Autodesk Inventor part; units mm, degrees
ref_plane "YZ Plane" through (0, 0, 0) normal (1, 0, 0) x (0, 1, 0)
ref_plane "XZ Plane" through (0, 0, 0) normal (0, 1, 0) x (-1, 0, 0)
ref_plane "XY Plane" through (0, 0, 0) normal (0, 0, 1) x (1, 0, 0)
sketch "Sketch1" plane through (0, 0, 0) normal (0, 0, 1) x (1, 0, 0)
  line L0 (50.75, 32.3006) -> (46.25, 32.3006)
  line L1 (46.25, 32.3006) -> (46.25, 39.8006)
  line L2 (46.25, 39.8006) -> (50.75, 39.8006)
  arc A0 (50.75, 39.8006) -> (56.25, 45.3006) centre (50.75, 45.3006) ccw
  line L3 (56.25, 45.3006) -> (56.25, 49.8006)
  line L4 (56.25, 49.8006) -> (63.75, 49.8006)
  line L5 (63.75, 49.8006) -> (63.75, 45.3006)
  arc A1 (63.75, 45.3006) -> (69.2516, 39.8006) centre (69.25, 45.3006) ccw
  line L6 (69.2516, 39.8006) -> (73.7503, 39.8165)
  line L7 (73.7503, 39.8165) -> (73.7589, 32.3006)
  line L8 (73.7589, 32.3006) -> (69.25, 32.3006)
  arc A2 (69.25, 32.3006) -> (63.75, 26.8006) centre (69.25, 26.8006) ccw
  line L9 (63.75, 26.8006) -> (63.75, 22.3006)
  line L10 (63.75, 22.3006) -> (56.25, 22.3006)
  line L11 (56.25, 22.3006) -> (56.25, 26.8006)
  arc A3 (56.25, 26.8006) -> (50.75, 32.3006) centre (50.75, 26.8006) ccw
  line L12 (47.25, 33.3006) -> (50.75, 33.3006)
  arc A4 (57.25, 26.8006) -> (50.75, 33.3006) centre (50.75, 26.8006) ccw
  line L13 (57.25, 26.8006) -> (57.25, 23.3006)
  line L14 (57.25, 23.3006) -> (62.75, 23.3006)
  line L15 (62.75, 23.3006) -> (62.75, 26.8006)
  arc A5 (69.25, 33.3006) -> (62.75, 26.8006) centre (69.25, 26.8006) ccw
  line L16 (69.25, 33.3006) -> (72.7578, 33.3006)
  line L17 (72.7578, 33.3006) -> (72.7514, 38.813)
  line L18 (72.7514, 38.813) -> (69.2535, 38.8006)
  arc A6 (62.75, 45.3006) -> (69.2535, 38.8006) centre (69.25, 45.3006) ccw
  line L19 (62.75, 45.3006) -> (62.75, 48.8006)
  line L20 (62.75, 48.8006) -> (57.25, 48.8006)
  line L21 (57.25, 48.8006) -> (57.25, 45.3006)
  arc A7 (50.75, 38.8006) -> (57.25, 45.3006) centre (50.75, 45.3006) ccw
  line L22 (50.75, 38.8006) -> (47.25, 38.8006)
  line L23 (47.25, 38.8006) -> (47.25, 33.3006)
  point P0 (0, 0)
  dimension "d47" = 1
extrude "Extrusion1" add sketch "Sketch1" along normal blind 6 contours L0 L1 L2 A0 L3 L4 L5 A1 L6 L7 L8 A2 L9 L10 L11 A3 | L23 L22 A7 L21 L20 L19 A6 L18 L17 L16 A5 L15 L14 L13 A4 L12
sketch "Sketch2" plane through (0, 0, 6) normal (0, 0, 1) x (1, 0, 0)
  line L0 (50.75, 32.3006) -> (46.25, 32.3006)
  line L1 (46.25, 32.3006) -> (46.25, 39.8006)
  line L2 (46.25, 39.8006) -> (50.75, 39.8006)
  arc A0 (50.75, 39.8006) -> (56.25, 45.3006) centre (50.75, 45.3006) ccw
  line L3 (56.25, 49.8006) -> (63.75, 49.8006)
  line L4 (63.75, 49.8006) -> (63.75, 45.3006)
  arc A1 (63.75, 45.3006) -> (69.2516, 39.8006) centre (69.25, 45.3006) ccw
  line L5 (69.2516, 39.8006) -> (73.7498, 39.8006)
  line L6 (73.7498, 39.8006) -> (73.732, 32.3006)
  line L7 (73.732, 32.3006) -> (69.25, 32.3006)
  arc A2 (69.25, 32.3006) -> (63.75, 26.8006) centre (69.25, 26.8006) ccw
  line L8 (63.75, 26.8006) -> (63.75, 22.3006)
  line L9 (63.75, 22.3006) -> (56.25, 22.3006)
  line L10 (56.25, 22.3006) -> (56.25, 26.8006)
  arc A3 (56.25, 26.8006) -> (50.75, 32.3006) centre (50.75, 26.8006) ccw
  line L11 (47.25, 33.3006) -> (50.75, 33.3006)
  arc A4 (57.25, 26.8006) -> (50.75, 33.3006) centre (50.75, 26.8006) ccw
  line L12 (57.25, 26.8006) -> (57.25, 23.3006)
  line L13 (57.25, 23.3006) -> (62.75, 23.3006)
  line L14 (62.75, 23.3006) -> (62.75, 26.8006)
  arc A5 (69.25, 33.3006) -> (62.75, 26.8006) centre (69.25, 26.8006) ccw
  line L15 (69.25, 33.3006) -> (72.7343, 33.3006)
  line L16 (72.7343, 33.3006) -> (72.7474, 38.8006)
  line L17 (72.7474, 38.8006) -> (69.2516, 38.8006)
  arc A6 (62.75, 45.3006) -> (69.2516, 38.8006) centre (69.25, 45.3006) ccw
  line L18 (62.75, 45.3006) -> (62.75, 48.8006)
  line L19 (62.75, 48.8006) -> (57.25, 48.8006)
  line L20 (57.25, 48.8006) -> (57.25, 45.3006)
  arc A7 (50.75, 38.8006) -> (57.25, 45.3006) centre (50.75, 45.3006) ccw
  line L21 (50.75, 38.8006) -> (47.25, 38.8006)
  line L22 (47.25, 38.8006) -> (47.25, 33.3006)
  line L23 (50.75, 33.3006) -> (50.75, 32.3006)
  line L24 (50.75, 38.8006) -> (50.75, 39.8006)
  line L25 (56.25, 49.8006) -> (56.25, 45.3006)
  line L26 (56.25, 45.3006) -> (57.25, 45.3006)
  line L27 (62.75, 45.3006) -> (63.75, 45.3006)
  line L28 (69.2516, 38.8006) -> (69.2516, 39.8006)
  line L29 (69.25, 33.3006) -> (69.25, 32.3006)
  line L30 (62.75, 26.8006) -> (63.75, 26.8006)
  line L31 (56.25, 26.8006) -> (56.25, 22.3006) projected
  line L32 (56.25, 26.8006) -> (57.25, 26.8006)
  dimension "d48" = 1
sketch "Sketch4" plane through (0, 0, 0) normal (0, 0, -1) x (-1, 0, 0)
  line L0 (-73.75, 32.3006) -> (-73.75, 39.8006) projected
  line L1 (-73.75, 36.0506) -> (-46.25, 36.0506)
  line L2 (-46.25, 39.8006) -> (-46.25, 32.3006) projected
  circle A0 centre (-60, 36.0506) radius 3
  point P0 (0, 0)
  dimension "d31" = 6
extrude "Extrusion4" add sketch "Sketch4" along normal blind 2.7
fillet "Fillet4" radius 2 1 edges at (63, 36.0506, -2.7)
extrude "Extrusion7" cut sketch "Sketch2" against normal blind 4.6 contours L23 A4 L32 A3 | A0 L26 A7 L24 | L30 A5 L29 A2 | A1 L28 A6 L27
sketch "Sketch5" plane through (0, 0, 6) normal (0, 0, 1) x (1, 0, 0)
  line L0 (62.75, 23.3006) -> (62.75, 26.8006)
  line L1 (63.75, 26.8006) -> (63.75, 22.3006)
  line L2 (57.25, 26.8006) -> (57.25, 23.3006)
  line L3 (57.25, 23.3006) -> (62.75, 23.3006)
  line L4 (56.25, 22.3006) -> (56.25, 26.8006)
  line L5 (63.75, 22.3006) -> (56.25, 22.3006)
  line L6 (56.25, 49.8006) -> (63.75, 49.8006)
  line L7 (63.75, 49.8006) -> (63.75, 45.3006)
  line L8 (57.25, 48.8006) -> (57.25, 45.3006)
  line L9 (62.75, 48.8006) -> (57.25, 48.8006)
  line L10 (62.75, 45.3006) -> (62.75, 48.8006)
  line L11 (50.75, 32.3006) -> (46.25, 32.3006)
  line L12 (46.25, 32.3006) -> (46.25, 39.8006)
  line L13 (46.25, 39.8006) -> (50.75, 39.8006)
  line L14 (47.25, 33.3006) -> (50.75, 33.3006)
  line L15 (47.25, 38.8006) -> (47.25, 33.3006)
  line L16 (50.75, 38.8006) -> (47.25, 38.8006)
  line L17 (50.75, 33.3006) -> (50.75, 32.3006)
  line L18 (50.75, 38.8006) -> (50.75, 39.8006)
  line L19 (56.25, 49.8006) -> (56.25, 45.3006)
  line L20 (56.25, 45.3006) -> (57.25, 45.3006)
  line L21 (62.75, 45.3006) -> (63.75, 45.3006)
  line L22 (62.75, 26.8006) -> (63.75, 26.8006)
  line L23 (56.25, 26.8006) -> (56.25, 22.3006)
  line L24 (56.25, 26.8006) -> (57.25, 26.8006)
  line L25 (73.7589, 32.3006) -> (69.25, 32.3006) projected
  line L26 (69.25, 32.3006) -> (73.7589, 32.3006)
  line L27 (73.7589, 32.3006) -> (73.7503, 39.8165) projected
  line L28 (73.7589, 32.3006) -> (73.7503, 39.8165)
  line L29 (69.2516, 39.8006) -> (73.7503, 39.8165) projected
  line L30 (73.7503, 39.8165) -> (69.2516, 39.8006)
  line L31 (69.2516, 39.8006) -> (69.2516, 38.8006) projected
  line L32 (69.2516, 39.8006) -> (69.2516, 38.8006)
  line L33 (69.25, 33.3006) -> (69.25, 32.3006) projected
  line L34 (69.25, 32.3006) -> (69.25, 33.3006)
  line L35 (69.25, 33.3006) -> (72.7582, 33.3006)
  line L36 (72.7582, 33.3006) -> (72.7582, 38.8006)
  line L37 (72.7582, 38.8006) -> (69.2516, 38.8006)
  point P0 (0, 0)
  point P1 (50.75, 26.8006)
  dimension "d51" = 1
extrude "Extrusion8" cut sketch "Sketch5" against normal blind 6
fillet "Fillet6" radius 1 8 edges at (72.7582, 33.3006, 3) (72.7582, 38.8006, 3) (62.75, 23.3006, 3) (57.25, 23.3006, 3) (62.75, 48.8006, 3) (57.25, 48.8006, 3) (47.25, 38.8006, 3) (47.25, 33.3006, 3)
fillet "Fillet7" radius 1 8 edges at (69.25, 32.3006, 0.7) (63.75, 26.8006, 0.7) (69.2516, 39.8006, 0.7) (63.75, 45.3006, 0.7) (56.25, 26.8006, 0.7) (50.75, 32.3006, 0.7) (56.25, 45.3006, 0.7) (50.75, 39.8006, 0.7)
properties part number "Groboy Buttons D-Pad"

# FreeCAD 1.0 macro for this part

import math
import FreeCAD as App
import Part
import Sketcher

V = App.Vector


def edges_at(feature, points):
    """Names of the edges that pass closest to the given points."""
    edges = feature.Shape.Edges
    near = lambda p: min(range(len(edges)), key=lambda i: edges[i].distToShape(Part.Vertex(*p))[0])
    return sorted({f"Edge{near(p) + 1}" for p in points})

doc = App.newDocument("Part")
body = doc.addObject("PartDesign::Body", "Body")

# Sketch on XY plane
sketch1 = doc.addObject("Sketcher::SketchObject", "Sketch")
body.addObject(sketch1)
sketch1.AttachmentSupport = (doc.XY_Plane, [""])
sketch1.MapMode = "FlatFace"
sketch1.addGeometry([
    Part.LineSegment(V(46.2, 32.3, 0), V(50.8, 32.3, 0)),  # 0
    Part.ArcOfCircle(Part.Circle(V(50.8, 26.8, 0), V(0, 0, 1), 5.5), math.radians(0), math.radians(90)),  # 1
    Part.LineSegment(V(56.2, 26.8, 0), V(56.2, 22.3, 0)),  # 2
    Part.LineSegment(V(56.2, 22.3, 0), V(63.8, 22.3, 0)),  # 3
    Part.LineSegment(V(63.8, 22.3, 0), V(63.8, 26.8, 0)),  # 4
    Part.ArcOfCircle(Part.Circle(V(69.2, 26.8, 0), V(0, 0, 1), 5.5), math.radians(90), math.radians(180)),  # 5
    Part.LineSegment(V(69.2, 32.3, 0), V(73.8, 32.3, 0)),  # 6
    Part.LineSegment(V(73.8, 32.3, 0), V(73.8, 39.8, 0)),  # 7
    Part.LineSegment(V(73.8, 39.8, 0), V(69.3, 39.8, 0)),  # 8
    Part.ArcOfCircle(Part.Circle(V(69.2, 45.3, 0), V(0, 0, 1), 5.5), math.radians(180), math.radians(270)),  # 9
    Part.LineSegment(V(63.8, 45.3, 0), V(63.8, 49.8, 0)),  # 10
    Part.LineSegment(V(63.8, 49.8, 0), V(56.2, 49.8, 0)),  # 11
    Part.LineSegment(V(56.2, 49.8, 0), V(56.2, 45.3, 0)),  # 12
    Part.ArcOfCircle(Part.Circle(V(50.8, 45.3, 0), V(0, 0, 1), 5.5), math.radians(-90), math.radians(0)),  # 13
    Part.LineSegment(V(50.8, 39.8, 0), V(46.2, 39.8, 0)),  # 14
    Part.LineSegment(V(46.2, 39.8, 0), V(46.2, 32.3, 0)),  # 15
], False)
sketch1.addConstraint([
    Sketcher.Constraint("Tangent", 0, 2, 1, 2),
    Sketcher.Constraint("Tangent", 1, 1, 2, 1),
    Sketcher.Constraint("Coincident", 2, 2, 3, 1),
    Sketcher.Constraint("Coincident", 3, 2, 4, 1),
    Sketcher.Constraint("Tangent", 4, 2, 5, 2),
    Sketcher.Constraint("Tangent", 5, 1, 6, 1),
    Sketcher.Constraint("Coincident", 6, 2, 7, 1),
    Sketcher.Constraint("Coincident", 7, 2, 8, 1),
    Sketcher.Constraint("Coincident", 8, 2, 9, 2),
    Sketcher.Constraint("Tangent", 9, 1, 10, 1),
    Sketcher.Constraint("Coincident", 10, 2, 11, 1),
    Sketcher.Constraint("Coincident", 11, 2, 12, 1),
    Sketcher.Constraint("Tangent", 12, 2, 13, 2),
    Sketcher.Constraint("Tangent", 13, 1, 14, 1),
    Sketcher.Constraint("Coincident", 14, 2, 15, 1),
    Sketcher.Constraint("Coincident", 15, 2, 0, 1),
    Sketcher.Constraint("Horizontal", 0),
    Sketcher.Constraint("Vertical", 2),
    Sketcher.Constraint("Horizontal", 3),
    Sketcher.Constraint("Vertical", 4),
    Sketcher.Constraint("Horizontal", 6),
    Sketcher.Constraint("Vertical", 10),
    Sketcher.Constraint("Horizontal", 11),
    Sketcher.Constraint("Vertical", 12),
    Sketcher.Constraint("Horizontal", 14),
    Sketcher.Constraint("Vertical", 15),
    Sketcher.Constraint("Equal", 1, 5),
    Sketcher.Constraint("Equal", 5, 9),
    Sketcher.Constraint("Equal", 9, 13),
    Sketcher.Constraint("Horizontal", 1, 3, 5, 3),
    Sketcher.Constraint("Horizontal", 9, 3, 13, 3),
    Sketcher.Constraint("Vertical", 5, 3, 9, 3),
    Sketcher.Constraint("Vertical", 1, 3, 13, 3),
    Sketcher.Constraint("Equal", 14, 2),
    Sketcher.Constraint("Equal", 4, 10),
    Sketcher.Constraint("Equal", 11, 15),
    Sketcher.Constraint("Radius", 1, 5.5),
    Sketcher.Constraint("DistanceX", 0, 1, 0, 2, 4.5),
    Sketcher.Constraint("DistanceX", 3, 1, 3, 2, 7.5),
    Sketcher.Constraint("DistanceX", 6, 1, 6, 2, 4.509),
    Sketcher.Constraint("DistanceX", -1, 1, 1, 3, 50.75),
    Sketcher.Constraint("Distance", 7, 7.516),
    Sketcher.Constraint("Distance", 8, 4.4987),
    Sketcher.Constraint("DistanceY", -1, 1, 1, 3, 26.8006),
    Sketcher.Constraint("DistanceX", -1, 1, 7, 2, 73.7503),
])
pad1 = doc.addObject("PartDesign::Pad", "Pad")
body.addObject(pad1)
pad1.Profile = sketch1
pad1.Length = 6

# Sketch on XY plane
sketch2 = doc.addObject("Sketcher::SketchObject", "Sketch001")
body.addObject(sketch2)
sketch2.AttachmentSupport = (doc.XY_Plane, [""])
sketch2.MapMode = "FlatFace"
sketch2.addGeometry(Part.Circle(V(60, 36.1, 0), V(0, 0, 1), 3), False)
sketch2.addConstraint([
    Sketcher.Constraint("Diameter", 0, 6.0),
    Sketcher.Constraint("DistanceX", -1, 1, 0, 3, 60.0),
    Sketcher.Constraint("DistanceY", -1, 1, 0, 3, 36.0506),
])
pad2 = doc.addObject("PartDesign::Pad", "Pad001")
body.addObject(pad2)
pad2.Profile = sketch2
pad2.Length = 2.7
pad2.Reversed = True
doc.recompute()

fillet = doc.addObject("PartDesign::Fillet", "Fillet")
body.addObject(fillet)
fillet.Base = (pad2, edges_at(pad2, [(63, 36.051, -2.7)]))
fillet.Radius = 2

# Sketch on XY plane
sketch3 = doc.addObject("Sketcher::SketchObject", "Sketch002")
body.addObject(sketch3)
sketch3.AttachmentSupport = (doc.XY_Plane, [""])
sketch3.MapMode = "FlatFace"
sketch3.AttachmentOffset = App.Placement(V(0, 0, 6), App.Rotation())
sketch3.addGeometry([
    Part.LineSegment(V(50.8, 33.3, 0), V(50.8, 32.3, 0)),  # 0
    Part.ArcOfCircle(Part.Circle(V(50.8, 26.8, 0), V(0, 0, 1), 5.5), math.radians(0), math.radians(90)),  # 1
    Part.LineSegment(V(56.2, 26.8, 0), V(57.2, 26.8, 0)),  # 2
    Part.ArcOfCircle(Part.Circle(V(50.8, 26.8, 0), V(0, 0, 1), 6.5), math.radians(0), math.radians(90)),  # 3
    Part.ArcOfCircle(Part.Circle(V(50.8, 45.3, 0), V(0, 0, 1), 5.5), math.radians(-90), math.radians(0)),  # 4
    Part.LineSegment(V(50.8, 39.8, 0), V(50.8, 38.8, 0)),  # 5
    Part.ArcOfCircle(Part.Circle(V(50.8, 45.3, 0), V(0, 0, 1), 6.5), math.radians(-90), math.radians(0)),  # 6
    Part.LineSegment(V(57.2, 45.3, 0), V(56.2, 45.3, 0)),  # 7
    Part.LineSegment(V(62.8, 26.8, 0), V(63.8, 26.8, 0)),  # 8
    Part.ArcOfCircle(Part.Circle(V(69.2, 26.8, 0), V(0, 0, 1), 5.5), math.radians(90), math.radians(180)),  # 9
    Part.LineSegment(V(69.2, 32.3, 0), V(69.2, 33.3, 0)),  # 10
    Part.ArcOfCircle(Part.Circle(V(69.2, 26.8, 0), V(0, 0, 1), 6.5), math.radians(90), math.radians(180)),  # 11
    Part.ArcOfCircle(Part.Circle(V(69.2, 45.3, 0), V(0, 0, 1), 5.5), math.radians(180), math.radians(270)),  # 12
    Part.LineSegment(V(63.8, 45.3, 0), V(62.8, 45.3, 0)),  # 13
    Part.ArcOfCircle(Part.Circle(V(69.2, 45.3, 0), V(0, 0, 1), 6.5), math.radians(180), math.radians(270)),  # 14
    Part.LineSegment(V(69.3, 38.8, 0), V(69.3, 39.8, 0)),  # 15
], False)
sketch3.addConstraint([
    Sketcher.Constraint("Coincident", 0, 2, 1, 2),
    Sketcher.Constraint("Coincident", 1, 1, 2, 1),
    Sketcher.Constraint("Coincident", 2, 2, 3, 1),
    Sketcher.Constraint("Coincident", 3, 2, 0, 1),
    Sketcher.Constraint("Coincident", 4, 1, 5, 1),
    Sketcher.Constraint("Coincident", 5, 2, 6, 1),
    Sketcher.Constraint("Coincident", 6, 2, 7, 1),
    Sketcher.Constraint("Coincident", 7, 2, 4, 2),
    Sketcher.Constraint("Coincident", 8, 2, 9, 2),
    Sketcher.Constraint("Coincident", 9, 1, 10, 1),
    Sketcher.Constraint("Coincident", 10, 2, 11, 1),
    Sketcher.Constraint("Coincident", 11, 2, 8, 1),
    Sketcher.Constraint("Coincident", 12, 1, 13, 1),
    Sketcher.Constraint("Coincident", 13, 2, 14, 1),
    Sketcher.Constraint("Coincident", 14, 2, 15, 1),
    Sketcher.Constraint("Coincident", 15, 2, 12, 2),
    Sketcher.Constraint("Vertical", 0),
    Sketcher.Constraint("Horizontal", 2),
    Sketcher.Constraint("Vertical", 5),
    Sketcher.Constraint("Horizontal", 7),
    Sketcher.Constraint("Horizontal", 8),
    Sketcher.Constraint("Vertical", 10),
    Sketcher.Constraint("Horizontal", 13),
    Sketcher.Constraint("Vertical", 15),
    Sketcher.Constraint("Coincident", 3, 3, 1, 3),
    Sketcher.Constraint("Coincident", 6, 3, 4, 3),
    Sketcher.Constraint("Coincident", 11, 3, 9, 3),
    Sketcher.Constraint("Coincident", 14, 3, 12, 3),
    Sketcher.Constraint("Equal", 1, 4),
    Sketcher.Constraint("Equal", 3, 6),
    Sketcher.Constraint("Equal", 4, 9),
    Sketcher.Constraint("Equal", 6, 11),
    Sketcher.Constraint("Equal", 9, 12),
    Sketcher.Constraint("Equal", 11, 14),
    Sketcher.Constraint("Horizontal", 3, 3, 9, 3),
    Sketcher.Constraint("Horizontal", 6, 3, 12, 3),
    Sketcher.Constraint("Horizontal", 11, 3, 1, 1),
    Sketcher.Constraint("Horizontal", 14, 3, 6, 2),
    Sketcher.Constraint("Horizontal", 2, 2, 8, 2),
    Sketcher.Constraint("Horizontal", 7, 2, 12, 1),
    Sketcher.Constraint("Vertical", 3, 3, 4, 3),
    Sketcher.Constraint("Vertical", 11, 3, 12, 3),
    Sketcher.Constraint("Vertical", 6, 3, 0, 2),
    Sketcher.Constraint("Vertical", 3, 2, 4, 1),
    Sketcher.Constraint("Vertical", 14, 3, 9, 1),
    Sketcher.Constraint("DistanceX", 2, 1, 2, 2, 1.0),
    Sketcher.Constraint("Radius", 1, 5.5),
    Sketcher.Constraint("DistanceY", 0, 2, 4, 3, 13.0),
    Sketcher.Constraint("DistanceX", 1, 1, 9, 3, 13.0),
    Sketcher.Constraint("DistanceX", -1, 1, 1, 3, 50.75),
    Sketcher.Constraint("DistanceY", -1, 1, 1, 3, 26.8006),
    Sketcher.Constraint("DistanceX", -1, 1, 14, 2, 69.2516),
])
pocket1 = doc.addObject("PartDesign::Pocket", "Pocket")
body.addObject(pocket1)
pocket1.Profile = sketch3
pocket1.Length = 4.6

# Sketch on XY plane
sketch4 = doc.addObject("Sketcher::SketchObject", "Sketch003")
body.addObject(sketch4)
sketch4.AttachmentSupport = (doc.XY_Plane, [""])
sketch4.MapMode = "FlatFace"
sketch4.AttachmentOffset = App.Placement(V(0, 0, 6), App.Rotation())
sketch4.addGeometry([
    Part.LineSegment(V(62.8, 26.8, 0), V(62.8, 23.3, 0)),  # 0
    Part.LineSegment(V(62.8, 23.3, 0), V(57.2, 23.3, 0)),  # 1
    Part.LineSegment(V(57.2, 23.3, 0), V(57.2, 26.8, 0)),  # 2
    Part.LineSegment(V(57.2, 26.8, 0), V(56.2, 26.8, 0)),  # 3
    Part.LineSegment(V(56.2, 26.8, 0), V(56.2, 22.3, 0)),  # 4
    Part.LineSegment(V(56.2, 22.3, 0), V(63.8, 22.3, 0)),  # 5
    Part.LineSegment(V(63.8, 22.3, 0), V(63.8, 26.8, 0)),  # 6
    Part.LineSegment(V(63.8, 26.8, 0), V(62.8, 26.8, 0)),  # 7
    Part.LineSegment(V(63.8, 49.8, 0), V(56.2, 49.8, 0)),  # 8
    Part.LineSegment(V(56.2, 49.8, 0), V(56.2, 45.3, 0)),  # 9
    Part.LineSegment(V(56.2, 45.3, 0), V(57.2, 45.3, 0)),  # 10
    Part.LineSegment(V(57.2, 45.3, 0), V(57.2, 48.8, 0)),  # 11
    Part.LineSegment(V(57.2, 48.8, 0), V(62.8, 48.8, 0)),  # 12
    Part.LineSegment(V(62.8, 48.8, 0), V(62.8, 45.3, 0)),  # 13
    Part.LineSegment(V(62.8, 45.3, 0), V(63.8, 45.3, 0)),  # 14
    Part.LineSegment(V(63.8, 45.3, 0), V(63.8, 49.8, 0)),  # 15
    Part.LineSegment(V(46.2, 32.3, 0), V(50.8, 32.3, 0)),  # 16
    Part.LineSegment(V(50.8, 32.3, 0), V(50.8, 33.3, 0)),  # 17
    Part.LineSegment(V(50.8, 33.3, 0), V(47.2, 33.3, 0)),  # 18
    Part.LineSegment(V(47.2, 33.3, 0), V(47.2, 38.8, 0)),  # 19
    Part.LineSegment(V(47.2, 38.8, 0), V(50.8, 38.8, 0)),  # 20
    Part.LineSegment(V(50.8, 38.8, 0), V(50.8, 39.8, 0)),  # 21
    Part.LineSegment(V(50.8, 39.8, 0), V(46.2, 39.8, 0)),  # 22
    Part.LineSegment(V(46.2, 39.8, 0), V(46.2, 32.3, 0)),  # 23
    Part.LineSegment(V(69.2, 32.3, 0), V(73.8, 32.3, 0)),  # 24
    Part.LineSegment(V(73.8, 32.3, 0), V(73.8, 39.8, 0)),  # 25
    Part.LineSegment(V(73.8, 39.8, 0), V(69.3, 39.8, 0)),  # 26
    Part.LineSegment(V(69.3, 39.8, 0), V(69.3, 38.8, 0)),  # 27
    Part.LineSegment(V(69.3, 38.8, 0), V(72.8, 38.8, 0)),  # 28
    Part.LineSegment(V(72.8, 38.8, 0), V(72.8, 33.3, 0)),  # 29
    Part.LineSegment(V(72.8, 33.3, 0), V(69.2, 33.3, 0)),  # 30
    Part.LineSegment(V(69.2, 33.3, 0), V(69.2, 32.3, 0)),  # 31
], False)
sketch4.addConstraint([
    Sketcher.Constraint("Coincident", 0, 2, 1, 1),
    Sketcher.Constraint("Coincident", 1, 2, 2, 1),
    Sketcher.Constraint("Coincident", 2, 2, 3, 1),
    Sketcher.Constraint("Coincident", 3, 2, 4, 1),
    Sketcher.Constraint("Coincident", 4, 2, 5, 1),
    Sketcher.Constraint("Coincident", 5, 2, 6, 1),
    Sketcher.Constraint("Coincident", 6, 2, 7, 1),
    Sketcher.Constraint("Coincident", 7, 2, 0, 1),
    Sketcher.Constraint("Coincident", 8, 2, 9, 1),
    Sketcher.Constraint("Coincident", 9, 2, 10, 1),
    Sketcher.Constraint("Coincident", 10, 2, 11, 1),
    Sketcher.Constraint("Coincident", 11, 2, 12, 1),
    Sketcher.Constraint("Coincident", 12, 2, 13, 1),
    Sketcher.Constraint("Coincident", 13, 2, 14, 1),
    Sketcher.Constraint("Coincident", 14, 2, 15, 1),
    Sketcher.Constraint("Coincident", 15, 2, 8, 1),
    Sketcher.Constraint("Coincident", 16, 2, 17, 1),
    Sketcher.Constraint("Coincident", 17, 2, 18, 1),
    Sketcher.Constraint("Coincident", 18, 2, 19, 1),
    Sketcher.Constraint("Coincident", 19, 2, 20, 1),
    Sketcher.Constraint("Coincident", 20, 2, 21, 1),
    Sketcher.Constraint("Coincident", 21, 2, 22, 1),
    Sketcher.Constraint("Coincident", 22, 2, 23, 1),
    Sketcher.Constraint("Coincident", 23, 2, 16, 1),
    Sketcher.Constraint("Coincident", 24, 2, 25, 1),
    Sketcher.Constraint("Coincident", 25, 2, 26, 1),
    Sketcher.Constraint("Coincident", 26, 2, 27, 1),
    Sketcher.Constraint("Coincident", 27, 2, 28, 1),
    Sketcher.Constraint("Coincident", 28, 2, 29, 1),
    Sketcher.Constraint("Coincident", 29, 2, 30, 1),
    Sketcher.Constraint("Coincident", 30, 2, 31, 1),
    Sketcher.Constraint("Coincident", 31, 2, 24, 1),
    Sketcher.Constraint("Vertical", 0),
    Sketcher.Constraint("Horizontal", 1),
    Sketcher.Constraint("Vertical", 2),
    Sketcher.Constraint("Horizontal", 3),
    Sketcher.Constraint("Vertical", 4),
    Sketcher.Constraint("Horizontal", 5),
    Sketcher.Constraint("Vertical", 6),
    Sketcher.Constraint("Horizontal", 7),
    Sketcher.Constraint("Horizontal", 8),
    Sketcher.Constraint("Vertical", 9),
    Sketcher.Constraint("Horizontal", 10),
    Sketcher.Constraint("Vertical", 11),
    Sketcher.Constraint("Horizontal", 12),
    Sketcher.Constraint("Vertical", 13),
    Sketcher.Constraint("Horizontal", 14),
    Sketcher.Constraint("Vertical", 15),
    Sketcher.Constraint("Horizontal", 16),
    Sketcher.Constraint("Vertical", 17),
    Sketcher.Constraint("Horizontal", 18),
    Sketcher.Constraint("Vertical", 19),
    Sketcher.Constraint("Horizontal", 20),
    Sketcher.Constraint("Vertical", 21),
    Sketcher.Constraint("Horizontal", 22),
    Sketcher.Constraint("Vertical", 23),
    Sketcher.Constraint("Horizontal", 24),
    Sketcher.Constraint("Vertical", 27),
    Sketcher.Constraint("Horizontal", 28),
    Sketcher.Constraint("Vertical", 29),
    Sketcher.Constraint("Horizontal", 30),
    Sketcher.Constraint("Vertical", 31),
    Sketcher.Constraint("Horizontal", 3, 2, 6, 2),
    Sketcher.Constraint("Horizontal", 10, 2, 13, 2),
    Sketcher.Constraint("Horizontal", 23, 2, 24, 2),
    Sketcher.Constraint("Horizontal", 22, 2, 26, 2),
    Sketcher.Constraint("Horizontal", 20, 2, 27, 2),
    Sketcher.Constraint("Horizontal", 18, 2, 29, 2),
    Sketcher.Constraint("Vertical", 4, 2, 8, 2),
    Sketcher.Constraint("Vertical", 2, 2, 10, 2),
    Sketcher.Constraint("Vertical", 7, 2, 12, 2),
    Sketcher.Constraint("Vertical", 6, 2, 14, 2),
    Sketcher.Constraint("Vertical", 17, 2, 20, 2),
    Sketcher.Constraint("Equal", 3, 7),
    Sketcher.Constraint("Equal", 20, 0),
    Sketcher.Constraint("Equal", 22, 4),
    Sketcher.Constraint("Equal", 6, 9),
    Sketcher.Constraint("Equal", 2, 11),
    Sketcher.Constraint("Equal", 14, 17),
    Sketcher.Constraint("Equal", 12, 19),
    Sketcher.Constraint("Equal", 17, 21),
    Sketcher.Constraint("DistanceX", 3, 2, 3, 1, 1.0),
    Sketcher.Constraint("DistanceY", 4, 2, 1, 2, 1.0),
    Sketcher.Constraint("DistanceX", 1, 2, 1, 1, 5.5),
    Sketcher.Constraint("DistanceX", 16, 1, 16, 2, 4.5),
    Sketcher.Constraint("DistanceY", 3, 2, 8, 2, 23.0),
    Sketcher.Constraint("DistanceY", 1, 2, 16, 2, 9.0),
    Sketcher.Constraint("DistanceX", 16, 2, 7, 2, 12.0),
    Sketcher.Constraint("DistanceX", 24, 1, 24, 2, 4.509),
    Sketcher.Constraint("DistanceX", -1, 1, 0, 2, 62.75),
    Sketcher.Constraint("DistanceX", -1, 1, 30, 2, 69.25),
    Sketcher.Constraint("Distance", 25, 7.516),
    Sketcher.Constraint("DistanceX", 28, 1, 28, 2, 3.5066),
    Sketcher.Constraint("DistanceX", 30, 2, 30, 1, 3.5082),
    Sketcher.Constraint("DistanceX", 28, 2, 25, 2, 0.992),
    Sketcher.Constraint("DistanceY", -1, 1, 0, 2, 23.3006),
])
pocket2 = doc.addObject("PartDesign::Pocket", "Pocket001")
body.addObject(pocket2)
pocket2.Profile = sketch4
pocket2.Length = 6
doc.recompute()

fillet2 = doc.addObject("PartDesign::Fillet", "Fillet001")
body.addObject(fillet2)
fillet2.Base = (pocket2, edges_at(pocket2, [
    (72.758, 33.301, 3),
    (72.758, 38.801, 3),
    (62.75, 23.301, 3),
    (57.25, 23.301, 3),
    (62.75, 48.801, 3),
    (57.25, 48.801, 3),
    (47.25, 38.801, 3),
    (47.25, 33.301, 3),
]))
fillet2.Radius = 1
doc.recompute()

fillet3 = doc.addObject("PartDesign::Fillet", "Fillet002")
body.addObject(fillet3)
fillet3.Base = (fillet2, edges_at(fillet2, [
    (69.25, 32.301, 0.7),
    (63.75, 26.801, 0.7),
    (69.252, 39.801, 0.7),
    (63.75, 45.301, 0.7),
    (56.25, 26.801, 0.7),
    (50.75, 32.301, 0.7),
    (56.25, 45.301, 0.7),
    (50.75, 39.801, 0.7),
]))
fillet3.Radius = 1

doc.recompute()
